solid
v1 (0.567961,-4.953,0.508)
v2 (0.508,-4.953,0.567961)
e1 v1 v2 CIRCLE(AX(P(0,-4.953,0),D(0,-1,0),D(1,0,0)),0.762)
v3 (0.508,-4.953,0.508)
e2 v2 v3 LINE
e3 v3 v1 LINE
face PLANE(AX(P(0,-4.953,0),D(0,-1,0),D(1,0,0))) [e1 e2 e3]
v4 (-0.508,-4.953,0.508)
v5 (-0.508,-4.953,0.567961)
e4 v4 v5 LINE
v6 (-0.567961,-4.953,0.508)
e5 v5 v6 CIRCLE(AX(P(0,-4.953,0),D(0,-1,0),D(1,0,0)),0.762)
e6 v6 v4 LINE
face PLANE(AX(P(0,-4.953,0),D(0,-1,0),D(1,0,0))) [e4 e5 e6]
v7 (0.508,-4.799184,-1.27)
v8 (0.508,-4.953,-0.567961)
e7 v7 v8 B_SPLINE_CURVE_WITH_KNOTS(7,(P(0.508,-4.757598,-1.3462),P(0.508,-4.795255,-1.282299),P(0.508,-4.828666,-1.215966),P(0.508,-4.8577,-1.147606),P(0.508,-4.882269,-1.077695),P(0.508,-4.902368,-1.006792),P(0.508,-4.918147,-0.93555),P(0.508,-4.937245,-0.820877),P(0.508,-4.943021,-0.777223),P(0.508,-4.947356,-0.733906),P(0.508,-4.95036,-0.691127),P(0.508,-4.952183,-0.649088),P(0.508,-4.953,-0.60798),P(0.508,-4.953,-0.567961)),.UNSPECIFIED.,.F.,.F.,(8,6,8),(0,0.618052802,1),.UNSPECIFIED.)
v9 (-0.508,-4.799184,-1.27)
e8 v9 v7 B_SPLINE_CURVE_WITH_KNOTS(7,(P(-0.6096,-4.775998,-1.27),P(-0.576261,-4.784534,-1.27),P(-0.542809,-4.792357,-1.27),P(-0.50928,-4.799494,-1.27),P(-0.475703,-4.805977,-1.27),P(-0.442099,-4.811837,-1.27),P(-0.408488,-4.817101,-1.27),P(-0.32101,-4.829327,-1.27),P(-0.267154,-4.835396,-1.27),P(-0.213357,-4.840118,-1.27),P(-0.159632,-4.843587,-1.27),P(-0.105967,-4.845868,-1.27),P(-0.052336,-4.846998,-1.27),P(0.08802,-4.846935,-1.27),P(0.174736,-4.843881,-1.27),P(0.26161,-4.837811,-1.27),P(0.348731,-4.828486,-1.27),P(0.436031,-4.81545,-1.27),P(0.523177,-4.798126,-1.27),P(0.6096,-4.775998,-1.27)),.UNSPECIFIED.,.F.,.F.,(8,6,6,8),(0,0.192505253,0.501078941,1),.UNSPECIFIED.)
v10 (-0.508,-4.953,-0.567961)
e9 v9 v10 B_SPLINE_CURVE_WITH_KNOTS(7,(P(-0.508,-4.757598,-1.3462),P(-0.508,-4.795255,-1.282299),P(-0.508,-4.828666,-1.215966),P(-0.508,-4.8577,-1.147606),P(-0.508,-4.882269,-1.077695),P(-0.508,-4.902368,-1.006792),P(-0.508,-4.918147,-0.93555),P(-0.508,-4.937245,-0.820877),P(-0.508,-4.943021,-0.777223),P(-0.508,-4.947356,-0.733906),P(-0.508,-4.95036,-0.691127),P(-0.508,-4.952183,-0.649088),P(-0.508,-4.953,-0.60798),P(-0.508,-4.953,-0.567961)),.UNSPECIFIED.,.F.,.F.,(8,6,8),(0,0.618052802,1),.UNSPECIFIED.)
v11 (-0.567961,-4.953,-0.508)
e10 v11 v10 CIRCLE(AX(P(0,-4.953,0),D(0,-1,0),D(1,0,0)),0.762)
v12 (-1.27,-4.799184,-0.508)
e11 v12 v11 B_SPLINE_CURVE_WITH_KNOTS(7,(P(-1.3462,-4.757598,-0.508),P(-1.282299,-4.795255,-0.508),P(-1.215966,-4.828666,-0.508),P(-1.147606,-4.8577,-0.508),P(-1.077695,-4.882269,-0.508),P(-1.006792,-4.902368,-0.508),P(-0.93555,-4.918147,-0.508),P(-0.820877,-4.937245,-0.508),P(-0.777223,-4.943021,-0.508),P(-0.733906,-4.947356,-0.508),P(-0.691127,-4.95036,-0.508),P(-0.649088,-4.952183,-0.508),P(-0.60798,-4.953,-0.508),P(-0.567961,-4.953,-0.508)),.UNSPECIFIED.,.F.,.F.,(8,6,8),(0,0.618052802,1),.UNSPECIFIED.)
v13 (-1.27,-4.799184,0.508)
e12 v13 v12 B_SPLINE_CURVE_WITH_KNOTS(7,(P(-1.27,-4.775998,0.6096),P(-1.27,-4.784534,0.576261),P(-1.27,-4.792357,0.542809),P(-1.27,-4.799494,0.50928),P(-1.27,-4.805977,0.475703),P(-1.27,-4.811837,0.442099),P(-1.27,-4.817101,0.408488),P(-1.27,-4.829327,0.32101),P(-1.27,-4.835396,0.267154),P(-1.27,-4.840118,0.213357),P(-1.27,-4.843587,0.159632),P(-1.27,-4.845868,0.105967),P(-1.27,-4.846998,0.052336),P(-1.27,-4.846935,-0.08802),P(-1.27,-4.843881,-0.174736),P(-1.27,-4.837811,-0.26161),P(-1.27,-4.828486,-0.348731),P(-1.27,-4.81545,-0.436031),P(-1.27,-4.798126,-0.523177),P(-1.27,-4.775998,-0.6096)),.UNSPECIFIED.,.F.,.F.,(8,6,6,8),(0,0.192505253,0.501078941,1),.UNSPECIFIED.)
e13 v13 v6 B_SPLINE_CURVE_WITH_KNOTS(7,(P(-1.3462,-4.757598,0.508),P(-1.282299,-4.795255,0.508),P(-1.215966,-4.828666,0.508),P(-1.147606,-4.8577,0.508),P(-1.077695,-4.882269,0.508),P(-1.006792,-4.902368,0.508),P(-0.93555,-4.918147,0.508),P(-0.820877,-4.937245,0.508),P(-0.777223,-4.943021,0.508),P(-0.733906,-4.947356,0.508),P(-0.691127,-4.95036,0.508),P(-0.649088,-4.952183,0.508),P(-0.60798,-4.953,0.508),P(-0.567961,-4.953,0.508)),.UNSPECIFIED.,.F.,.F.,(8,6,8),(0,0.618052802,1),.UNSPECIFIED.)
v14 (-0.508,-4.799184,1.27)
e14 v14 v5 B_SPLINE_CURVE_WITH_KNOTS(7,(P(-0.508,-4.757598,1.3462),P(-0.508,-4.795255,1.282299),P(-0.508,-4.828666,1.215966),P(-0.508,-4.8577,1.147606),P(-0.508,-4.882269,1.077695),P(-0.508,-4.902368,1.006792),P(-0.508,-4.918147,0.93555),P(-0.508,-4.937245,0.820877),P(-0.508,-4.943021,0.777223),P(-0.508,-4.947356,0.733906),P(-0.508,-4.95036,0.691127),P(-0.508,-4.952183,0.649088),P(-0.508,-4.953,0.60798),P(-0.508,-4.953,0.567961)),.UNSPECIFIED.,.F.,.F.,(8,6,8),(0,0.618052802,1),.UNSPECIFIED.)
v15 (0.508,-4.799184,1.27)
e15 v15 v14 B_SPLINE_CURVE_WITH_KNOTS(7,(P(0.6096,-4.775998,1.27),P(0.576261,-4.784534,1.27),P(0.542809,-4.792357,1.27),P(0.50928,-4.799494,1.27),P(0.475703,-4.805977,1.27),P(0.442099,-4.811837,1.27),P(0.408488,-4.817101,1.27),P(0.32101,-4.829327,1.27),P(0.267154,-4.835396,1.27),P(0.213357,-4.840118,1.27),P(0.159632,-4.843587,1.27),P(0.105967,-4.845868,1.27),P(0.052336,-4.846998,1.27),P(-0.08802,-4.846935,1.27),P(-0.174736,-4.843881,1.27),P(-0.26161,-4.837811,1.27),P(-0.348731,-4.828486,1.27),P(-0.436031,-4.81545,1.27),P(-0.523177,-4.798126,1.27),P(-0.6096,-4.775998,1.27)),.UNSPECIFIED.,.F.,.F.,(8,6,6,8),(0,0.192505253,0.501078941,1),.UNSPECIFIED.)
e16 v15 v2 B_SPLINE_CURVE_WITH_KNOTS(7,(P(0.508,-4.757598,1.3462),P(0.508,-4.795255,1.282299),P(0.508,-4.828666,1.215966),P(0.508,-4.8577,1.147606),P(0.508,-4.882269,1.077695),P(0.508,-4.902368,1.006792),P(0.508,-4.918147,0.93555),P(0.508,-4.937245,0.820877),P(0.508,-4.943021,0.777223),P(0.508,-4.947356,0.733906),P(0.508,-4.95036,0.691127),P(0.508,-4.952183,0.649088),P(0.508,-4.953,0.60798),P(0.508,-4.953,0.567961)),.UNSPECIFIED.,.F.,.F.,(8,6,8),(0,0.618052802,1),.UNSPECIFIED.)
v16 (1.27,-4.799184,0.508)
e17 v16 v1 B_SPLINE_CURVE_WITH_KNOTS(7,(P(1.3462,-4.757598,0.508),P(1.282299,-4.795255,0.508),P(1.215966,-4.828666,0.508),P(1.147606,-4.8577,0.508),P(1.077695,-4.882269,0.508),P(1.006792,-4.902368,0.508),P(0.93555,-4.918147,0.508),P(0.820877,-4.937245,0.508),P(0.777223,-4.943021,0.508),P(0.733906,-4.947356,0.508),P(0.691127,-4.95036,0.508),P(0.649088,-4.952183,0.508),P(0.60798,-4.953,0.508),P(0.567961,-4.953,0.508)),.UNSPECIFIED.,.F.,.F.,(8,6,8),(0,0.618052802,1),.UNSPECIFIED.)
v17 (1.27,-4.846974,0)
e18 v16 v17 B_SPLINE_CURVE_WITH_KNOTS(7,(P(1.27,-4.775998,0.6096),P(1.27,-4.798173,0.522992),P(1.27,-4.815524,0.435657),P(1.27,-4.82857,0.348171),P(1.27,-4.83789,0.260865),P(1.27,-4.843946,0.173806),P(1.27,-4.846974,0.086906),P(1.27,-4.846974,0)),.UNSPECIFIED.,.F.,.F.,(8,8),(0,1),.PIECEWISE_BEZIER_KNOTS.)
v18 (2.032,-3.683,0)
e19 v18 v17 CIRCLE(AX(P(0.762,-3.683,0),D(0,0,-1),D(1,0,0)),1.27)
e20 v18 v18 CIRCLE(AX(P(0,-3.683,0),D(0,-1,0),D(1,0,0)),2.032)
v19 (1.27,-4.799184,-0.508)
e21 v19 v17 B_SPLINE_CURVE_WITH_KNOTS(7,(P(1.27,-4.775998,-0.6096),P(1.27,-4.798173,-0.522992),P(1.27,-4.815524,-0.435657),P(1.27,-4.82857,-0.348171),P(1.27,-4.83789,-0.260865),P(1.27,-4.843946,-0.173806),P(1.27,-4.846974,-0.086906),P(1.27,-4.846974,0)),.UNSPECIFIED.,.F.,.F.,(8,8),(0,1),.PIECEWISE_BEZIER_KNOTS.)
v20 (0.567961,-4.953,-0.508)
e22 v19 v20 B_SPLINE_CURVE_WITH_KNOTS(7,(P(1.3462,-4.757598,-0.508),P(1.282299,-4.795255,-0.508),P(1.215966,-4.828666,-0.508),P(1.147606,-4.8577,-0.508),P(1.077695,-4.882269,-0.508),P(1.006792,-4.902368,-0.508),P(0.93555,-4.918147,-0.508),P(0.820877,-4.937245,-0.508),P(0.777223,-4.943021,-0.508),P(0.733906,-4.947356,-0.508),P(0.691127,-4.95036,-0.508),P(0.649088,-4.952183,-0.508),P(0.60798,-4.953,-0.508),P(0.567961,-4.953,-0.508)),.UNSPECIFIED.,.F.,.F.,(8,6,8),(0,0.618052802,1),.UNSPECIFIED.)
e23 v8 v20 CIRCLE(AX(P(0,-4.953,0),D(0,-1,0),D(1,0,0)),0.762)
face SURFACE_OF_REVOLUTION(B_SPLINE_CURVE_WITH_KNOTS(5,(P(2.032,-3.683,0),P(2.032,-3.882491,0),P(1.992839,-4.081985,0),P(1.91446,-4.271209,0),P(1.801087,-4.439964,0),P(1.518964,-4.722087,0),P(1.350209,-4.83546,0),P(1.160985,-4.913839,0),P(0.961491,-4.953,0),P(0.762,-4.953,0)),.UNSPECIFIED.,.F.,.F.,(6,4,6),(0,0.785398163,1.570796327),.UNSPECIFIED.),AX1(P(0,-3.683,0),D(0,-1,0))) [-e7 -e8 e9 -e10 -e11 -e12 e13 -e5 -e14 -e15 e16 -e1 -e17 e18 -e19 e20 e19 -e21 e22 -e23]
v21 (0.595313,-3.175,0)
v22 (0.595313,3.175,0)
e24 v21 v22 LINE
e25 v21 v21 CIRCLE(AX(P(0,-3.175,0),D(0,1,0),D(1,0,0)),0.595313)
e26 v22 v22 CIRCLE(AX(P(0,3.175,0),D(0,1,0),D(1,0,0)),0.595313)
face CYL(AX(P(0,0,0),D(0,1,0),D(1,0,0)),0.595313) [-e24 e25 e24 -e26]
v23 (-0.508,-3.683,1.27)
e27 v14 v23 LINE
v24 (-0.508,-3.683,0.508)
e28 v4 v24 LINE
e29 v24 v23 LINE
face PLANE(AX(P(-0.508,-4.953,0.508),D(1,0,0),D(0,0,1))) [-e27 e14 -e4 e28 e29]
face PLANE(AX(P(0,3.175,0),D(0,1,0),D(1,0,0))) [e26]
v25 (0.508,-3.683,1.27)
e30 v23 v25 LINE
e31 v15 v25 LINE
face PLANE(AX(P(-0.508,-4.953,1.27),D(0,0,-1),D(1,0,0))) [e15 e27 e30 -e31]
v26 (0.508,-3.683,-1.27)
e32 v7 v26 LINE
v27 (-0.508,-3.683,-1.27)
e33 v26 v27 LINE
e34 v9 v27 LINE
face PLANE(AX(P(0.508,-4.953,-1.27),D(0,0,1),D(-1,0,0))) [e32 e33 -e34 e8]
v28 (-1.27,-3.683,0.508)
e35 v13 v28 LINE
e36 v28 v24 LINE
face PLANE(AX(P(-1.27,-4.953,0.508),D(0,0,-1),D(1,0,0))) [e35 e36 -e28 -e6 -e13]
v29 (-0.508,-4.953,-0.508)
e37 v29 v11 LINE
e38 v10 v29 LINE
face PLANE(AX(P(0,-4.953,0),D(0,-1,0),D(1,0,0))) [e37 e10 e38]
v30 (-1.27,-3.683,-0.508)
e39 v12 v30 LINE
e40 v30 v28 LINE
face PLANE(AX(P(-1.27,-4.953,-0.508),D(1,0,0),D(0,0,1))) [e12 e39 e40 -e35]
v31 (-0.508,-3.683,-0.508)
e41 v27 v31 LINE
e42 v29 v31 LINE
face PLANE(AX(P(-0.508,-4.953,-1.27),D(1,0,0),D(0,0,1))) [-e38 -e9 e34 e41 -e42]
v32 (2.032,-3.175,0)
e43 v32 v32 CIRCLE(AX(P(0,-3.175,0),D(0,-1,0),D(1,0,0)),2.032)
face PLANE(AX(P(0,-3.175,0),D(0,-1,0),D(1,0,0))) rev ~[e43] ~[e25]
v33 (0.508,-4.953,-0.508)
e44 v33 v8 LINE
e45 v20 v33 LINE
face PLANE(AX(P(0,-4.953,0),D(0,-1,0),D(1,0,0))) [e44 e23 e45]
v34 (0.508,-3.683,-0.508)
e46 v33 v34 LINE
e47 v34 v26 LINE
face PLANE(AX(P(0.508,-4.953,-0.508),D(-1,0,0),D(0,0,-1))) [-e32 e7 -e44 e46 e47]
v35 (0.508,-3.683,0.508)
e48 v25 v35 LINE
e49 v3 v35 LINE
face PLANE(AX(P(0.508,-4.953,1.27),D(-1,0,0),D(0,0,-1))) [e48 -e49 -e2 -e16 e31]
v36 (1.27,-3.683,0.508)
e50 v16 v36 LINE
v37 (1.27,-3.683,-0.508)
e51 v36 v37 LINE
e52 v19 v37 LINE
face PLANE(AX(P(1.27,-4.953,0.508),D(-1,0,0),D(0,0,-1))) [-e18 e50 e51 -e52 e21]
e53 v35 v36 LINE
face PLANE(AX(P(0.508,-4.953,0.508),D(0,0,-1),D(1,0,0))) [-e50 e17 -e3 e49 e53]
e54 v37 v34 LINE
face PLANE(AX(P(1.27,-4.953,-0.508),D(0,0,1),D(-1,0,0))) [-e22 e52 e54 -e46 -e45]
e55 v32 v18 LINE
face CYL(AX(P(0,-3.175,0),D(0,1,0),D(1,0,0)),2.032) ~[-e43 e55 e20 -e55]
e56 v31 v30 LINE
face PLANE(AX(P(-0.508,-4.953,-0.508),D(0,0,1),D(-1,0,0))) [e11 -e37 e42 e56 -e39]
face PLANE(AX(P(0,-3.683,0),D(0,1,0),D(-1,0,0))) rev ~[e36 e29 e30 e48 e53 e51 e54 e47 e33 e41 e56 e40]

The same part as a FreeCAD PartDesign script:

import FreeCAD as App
import Part
import Sketcher
from FreeCAD import Vector
Q = App.Units.Quantity


def edges_at(feature, points):
    """Names of the edges that pass closest to the given points."""
    edges = feature.Shape.Edges
    near = lambda p: min(range(len(edges)), key=lambda i: edges[i].distToShape(Part.Vertex(*p))[0])
    return sorted({f"Edge{near(p) + 1}" for p in points})

doc = App.newDocument("Part")
body = doc.addObject("PartDesign::Body", "Body")

sketch1 = body.newObject("Sketcher::SketchObject", "Sketch")
sketch1.AttachmentSupport = (doc.getObject("XZ_Plane"), [""])
sketch1.MapMode = "FlatFace"
sketch1.addGeometry(Part.Circle(Vector(0, 0, 0), Vector(0, 0, 1), 0.595313), False)
sketch1.addConstraint([
    Sketcher.Constraint("Coincident", 0, 3, -1, 1),
    Sketcher.Constraint("Diameter", 0, Q("0.046875 in")),
])
pad1 = body.newObject("PartDesign::Pad", "Pad")
pad1.Profile = sketch1
pad1.Length = Q("0.25 in")
pad1.Midplane = True

sketch2 = body.newObject("Sketcher::SketchObject", "Sketch001")
sketch2.AttachmentSupport = (doc.getObject("XZ_Plane"), [""])
sketch2.MapMode = "FlatFace"
sketch2.AttachmentOffset = App.Placement(Vector(0, 0, 0.125 * 25.4), App.Rotation())
sketch2.addGeometry(Part.Circle(Vector(0, 0, 0), Vector(0, 0, 1), 2.032), False)
sketch2.addConstraint([
    Sketcher.Constraint("Coincident", 0, 3, -1, 1),
    Sketcher.Constraint("Diameter", 0, Q("0.16 in")),
])
pad2 = body.newObject("PartDesign::Pad", "Pad001")
pad2.Profile = sketch2
pad2.Length = Q("0.07 in")
doc.recompute()

fillet = body.newObject("PartDesign::Fillet", "Fillet")
fillet.Base = (pad2, edges_at(pad2, [(-2.032, -4.953, 0)]))
fillet.Radius = Q("0.05 in")

sketch3 = body.newObject("Sketcher::SketchObject", "Sketch002")
sketch3.AttachmentSupport = (doc.getObject("XZ_Plane"), [""])
sketch3.MapMode = "FlatFace"
sketch3.AttachmentOffset = App.Placement(Vector(0, 0, 0.195 * 25.4), App.Rotation())
sketch3.addGeometry([
    Part.LineSegment(Vector(-1.27, -0.508, 0), Vector(-0.508, -0.508, 0)),
    Part.LineSegment(Vector(-0.508, -0.508, 0), Vector(-0.508, -1.27, 0)),
    Part.LineSegment(Vector(-0.508, -1.27, 0), Vector(0.508, -1.27, 0)),
    Part.LineSegment(Vector(0.508, -1.27, 0), Vector(0.508, -0.508, 0)),
    Part.LineSegment(Vector(0.508, -0.508, 0), Vector(1.27, -0.508, 0)),
    Part.LineSegment(Vector(1.27, -0.508, 0), Vector(1.27, 0.508, 0)),
    Part.LineSegment(Vector(1.27, 0.508, 0), Vector(0.508, 0.508, 0)),
    Part.LineSegment(Vector(0.508, 0.508, 0), Vector(0.508, 1.27, 0)),
    Part.LineSegment(Vector(0.508, 1.27, 0), Vector(-0.508, 1.27, 0)),
    Part.LineSegment(Vector(-0.508, 1.27, 0), Vector(-0.508, 0.508, 0)),
    Part.LineSegment(Vector(-0.508, 0.508, 0), Vector(-1.27, 0.508, 0)),
    Part.LineSegment(Vector(-1.27, 0.508, 0), Vector(-1.27, -0.508, 0)),
], False)
sketch3.addConstraint([
    Sketcher.Constraint("Coincident", 0, 2, 1, 1),
    Sketcher.Constraint("Coincident", 1, 2, 2, 1),
    Sketcher.Constraint("Coincident", 2, 2, 3, 1),
    Sketcher.Constraint("Coincident", 3, 2, 4, 1),
    Sketcher.Constraint("Coincident", 4, 2, 5, 1),
    Sketcher.Constraint("Coincident", 5, 2, 6, 1),
    Sketcher.Constraint("Coincident", 6, 2, 7, 1),
    Sketcher.Constraint("Coincident", 7, 2, 8, 1),
    Sketcher.Constraint("Coincident", 8, 2, 9, 1),
    Sketcher.Constraint("Coincident", 9, 2, 10, 1),
    Sketcher.Constraint("Coincident", 10, 2, 11, 1),
    Sketcher.Constraint("Coincident", 11, 2, 0, 1),
    Sketcher.Constraint("Horizontal", 0),
    Sketcher.Constraint("Vertical", 1),
    Sketcher.Constraint("Horizontal", 2),
    Sketcher.Constraint("Vertical", 3),
    Sketcher.Constraint("Horizontal", 4),
    Sketcher.Constraint("Vertical", 5),
    Sketcher.Constraint("Horizontal", 6),
    Sketcher.Constraint("Vertical", 7),
    Sketcher.Constraint("Horizontal", 8),
    Sketcher.Constraint("Vertical", 9),
    Sketcher.Constraint("Horizontal", 10),
    Sketcher.Constraint("Vertical", 11),
    Sketcher.Constraint("Symmetric", 0, 2, 6, 2, -1, 1),
    Sketcher.Constraint("Symmetric", 2, 2, 8, 2, -1, 1),
    Sketcher.Constraint("Symmetric", 4, 2, 10, 2, -1, 1),
    Sketcher.Constraint("Symmetric", 0, 2, 3, 2, -2),
    Sketcher.Constraint("Equal", 10, 1),
    Sketcher.Constraint("Equal", 8, 5),
    Sketcher.Constraint("DistanceX", 0, 1, 0, 2, Q("0.03 in")),
    Sketcher.Constraint("DistanceX", 2, 1, 2, 2, Q("0.04 in")),
])
pocket1 = body.newObject("PartDesign::Pocket", "Pocket")
pocket1.Profile = sketch3
pocket1.Length = Q("0.05 in")

doc.recompute()
